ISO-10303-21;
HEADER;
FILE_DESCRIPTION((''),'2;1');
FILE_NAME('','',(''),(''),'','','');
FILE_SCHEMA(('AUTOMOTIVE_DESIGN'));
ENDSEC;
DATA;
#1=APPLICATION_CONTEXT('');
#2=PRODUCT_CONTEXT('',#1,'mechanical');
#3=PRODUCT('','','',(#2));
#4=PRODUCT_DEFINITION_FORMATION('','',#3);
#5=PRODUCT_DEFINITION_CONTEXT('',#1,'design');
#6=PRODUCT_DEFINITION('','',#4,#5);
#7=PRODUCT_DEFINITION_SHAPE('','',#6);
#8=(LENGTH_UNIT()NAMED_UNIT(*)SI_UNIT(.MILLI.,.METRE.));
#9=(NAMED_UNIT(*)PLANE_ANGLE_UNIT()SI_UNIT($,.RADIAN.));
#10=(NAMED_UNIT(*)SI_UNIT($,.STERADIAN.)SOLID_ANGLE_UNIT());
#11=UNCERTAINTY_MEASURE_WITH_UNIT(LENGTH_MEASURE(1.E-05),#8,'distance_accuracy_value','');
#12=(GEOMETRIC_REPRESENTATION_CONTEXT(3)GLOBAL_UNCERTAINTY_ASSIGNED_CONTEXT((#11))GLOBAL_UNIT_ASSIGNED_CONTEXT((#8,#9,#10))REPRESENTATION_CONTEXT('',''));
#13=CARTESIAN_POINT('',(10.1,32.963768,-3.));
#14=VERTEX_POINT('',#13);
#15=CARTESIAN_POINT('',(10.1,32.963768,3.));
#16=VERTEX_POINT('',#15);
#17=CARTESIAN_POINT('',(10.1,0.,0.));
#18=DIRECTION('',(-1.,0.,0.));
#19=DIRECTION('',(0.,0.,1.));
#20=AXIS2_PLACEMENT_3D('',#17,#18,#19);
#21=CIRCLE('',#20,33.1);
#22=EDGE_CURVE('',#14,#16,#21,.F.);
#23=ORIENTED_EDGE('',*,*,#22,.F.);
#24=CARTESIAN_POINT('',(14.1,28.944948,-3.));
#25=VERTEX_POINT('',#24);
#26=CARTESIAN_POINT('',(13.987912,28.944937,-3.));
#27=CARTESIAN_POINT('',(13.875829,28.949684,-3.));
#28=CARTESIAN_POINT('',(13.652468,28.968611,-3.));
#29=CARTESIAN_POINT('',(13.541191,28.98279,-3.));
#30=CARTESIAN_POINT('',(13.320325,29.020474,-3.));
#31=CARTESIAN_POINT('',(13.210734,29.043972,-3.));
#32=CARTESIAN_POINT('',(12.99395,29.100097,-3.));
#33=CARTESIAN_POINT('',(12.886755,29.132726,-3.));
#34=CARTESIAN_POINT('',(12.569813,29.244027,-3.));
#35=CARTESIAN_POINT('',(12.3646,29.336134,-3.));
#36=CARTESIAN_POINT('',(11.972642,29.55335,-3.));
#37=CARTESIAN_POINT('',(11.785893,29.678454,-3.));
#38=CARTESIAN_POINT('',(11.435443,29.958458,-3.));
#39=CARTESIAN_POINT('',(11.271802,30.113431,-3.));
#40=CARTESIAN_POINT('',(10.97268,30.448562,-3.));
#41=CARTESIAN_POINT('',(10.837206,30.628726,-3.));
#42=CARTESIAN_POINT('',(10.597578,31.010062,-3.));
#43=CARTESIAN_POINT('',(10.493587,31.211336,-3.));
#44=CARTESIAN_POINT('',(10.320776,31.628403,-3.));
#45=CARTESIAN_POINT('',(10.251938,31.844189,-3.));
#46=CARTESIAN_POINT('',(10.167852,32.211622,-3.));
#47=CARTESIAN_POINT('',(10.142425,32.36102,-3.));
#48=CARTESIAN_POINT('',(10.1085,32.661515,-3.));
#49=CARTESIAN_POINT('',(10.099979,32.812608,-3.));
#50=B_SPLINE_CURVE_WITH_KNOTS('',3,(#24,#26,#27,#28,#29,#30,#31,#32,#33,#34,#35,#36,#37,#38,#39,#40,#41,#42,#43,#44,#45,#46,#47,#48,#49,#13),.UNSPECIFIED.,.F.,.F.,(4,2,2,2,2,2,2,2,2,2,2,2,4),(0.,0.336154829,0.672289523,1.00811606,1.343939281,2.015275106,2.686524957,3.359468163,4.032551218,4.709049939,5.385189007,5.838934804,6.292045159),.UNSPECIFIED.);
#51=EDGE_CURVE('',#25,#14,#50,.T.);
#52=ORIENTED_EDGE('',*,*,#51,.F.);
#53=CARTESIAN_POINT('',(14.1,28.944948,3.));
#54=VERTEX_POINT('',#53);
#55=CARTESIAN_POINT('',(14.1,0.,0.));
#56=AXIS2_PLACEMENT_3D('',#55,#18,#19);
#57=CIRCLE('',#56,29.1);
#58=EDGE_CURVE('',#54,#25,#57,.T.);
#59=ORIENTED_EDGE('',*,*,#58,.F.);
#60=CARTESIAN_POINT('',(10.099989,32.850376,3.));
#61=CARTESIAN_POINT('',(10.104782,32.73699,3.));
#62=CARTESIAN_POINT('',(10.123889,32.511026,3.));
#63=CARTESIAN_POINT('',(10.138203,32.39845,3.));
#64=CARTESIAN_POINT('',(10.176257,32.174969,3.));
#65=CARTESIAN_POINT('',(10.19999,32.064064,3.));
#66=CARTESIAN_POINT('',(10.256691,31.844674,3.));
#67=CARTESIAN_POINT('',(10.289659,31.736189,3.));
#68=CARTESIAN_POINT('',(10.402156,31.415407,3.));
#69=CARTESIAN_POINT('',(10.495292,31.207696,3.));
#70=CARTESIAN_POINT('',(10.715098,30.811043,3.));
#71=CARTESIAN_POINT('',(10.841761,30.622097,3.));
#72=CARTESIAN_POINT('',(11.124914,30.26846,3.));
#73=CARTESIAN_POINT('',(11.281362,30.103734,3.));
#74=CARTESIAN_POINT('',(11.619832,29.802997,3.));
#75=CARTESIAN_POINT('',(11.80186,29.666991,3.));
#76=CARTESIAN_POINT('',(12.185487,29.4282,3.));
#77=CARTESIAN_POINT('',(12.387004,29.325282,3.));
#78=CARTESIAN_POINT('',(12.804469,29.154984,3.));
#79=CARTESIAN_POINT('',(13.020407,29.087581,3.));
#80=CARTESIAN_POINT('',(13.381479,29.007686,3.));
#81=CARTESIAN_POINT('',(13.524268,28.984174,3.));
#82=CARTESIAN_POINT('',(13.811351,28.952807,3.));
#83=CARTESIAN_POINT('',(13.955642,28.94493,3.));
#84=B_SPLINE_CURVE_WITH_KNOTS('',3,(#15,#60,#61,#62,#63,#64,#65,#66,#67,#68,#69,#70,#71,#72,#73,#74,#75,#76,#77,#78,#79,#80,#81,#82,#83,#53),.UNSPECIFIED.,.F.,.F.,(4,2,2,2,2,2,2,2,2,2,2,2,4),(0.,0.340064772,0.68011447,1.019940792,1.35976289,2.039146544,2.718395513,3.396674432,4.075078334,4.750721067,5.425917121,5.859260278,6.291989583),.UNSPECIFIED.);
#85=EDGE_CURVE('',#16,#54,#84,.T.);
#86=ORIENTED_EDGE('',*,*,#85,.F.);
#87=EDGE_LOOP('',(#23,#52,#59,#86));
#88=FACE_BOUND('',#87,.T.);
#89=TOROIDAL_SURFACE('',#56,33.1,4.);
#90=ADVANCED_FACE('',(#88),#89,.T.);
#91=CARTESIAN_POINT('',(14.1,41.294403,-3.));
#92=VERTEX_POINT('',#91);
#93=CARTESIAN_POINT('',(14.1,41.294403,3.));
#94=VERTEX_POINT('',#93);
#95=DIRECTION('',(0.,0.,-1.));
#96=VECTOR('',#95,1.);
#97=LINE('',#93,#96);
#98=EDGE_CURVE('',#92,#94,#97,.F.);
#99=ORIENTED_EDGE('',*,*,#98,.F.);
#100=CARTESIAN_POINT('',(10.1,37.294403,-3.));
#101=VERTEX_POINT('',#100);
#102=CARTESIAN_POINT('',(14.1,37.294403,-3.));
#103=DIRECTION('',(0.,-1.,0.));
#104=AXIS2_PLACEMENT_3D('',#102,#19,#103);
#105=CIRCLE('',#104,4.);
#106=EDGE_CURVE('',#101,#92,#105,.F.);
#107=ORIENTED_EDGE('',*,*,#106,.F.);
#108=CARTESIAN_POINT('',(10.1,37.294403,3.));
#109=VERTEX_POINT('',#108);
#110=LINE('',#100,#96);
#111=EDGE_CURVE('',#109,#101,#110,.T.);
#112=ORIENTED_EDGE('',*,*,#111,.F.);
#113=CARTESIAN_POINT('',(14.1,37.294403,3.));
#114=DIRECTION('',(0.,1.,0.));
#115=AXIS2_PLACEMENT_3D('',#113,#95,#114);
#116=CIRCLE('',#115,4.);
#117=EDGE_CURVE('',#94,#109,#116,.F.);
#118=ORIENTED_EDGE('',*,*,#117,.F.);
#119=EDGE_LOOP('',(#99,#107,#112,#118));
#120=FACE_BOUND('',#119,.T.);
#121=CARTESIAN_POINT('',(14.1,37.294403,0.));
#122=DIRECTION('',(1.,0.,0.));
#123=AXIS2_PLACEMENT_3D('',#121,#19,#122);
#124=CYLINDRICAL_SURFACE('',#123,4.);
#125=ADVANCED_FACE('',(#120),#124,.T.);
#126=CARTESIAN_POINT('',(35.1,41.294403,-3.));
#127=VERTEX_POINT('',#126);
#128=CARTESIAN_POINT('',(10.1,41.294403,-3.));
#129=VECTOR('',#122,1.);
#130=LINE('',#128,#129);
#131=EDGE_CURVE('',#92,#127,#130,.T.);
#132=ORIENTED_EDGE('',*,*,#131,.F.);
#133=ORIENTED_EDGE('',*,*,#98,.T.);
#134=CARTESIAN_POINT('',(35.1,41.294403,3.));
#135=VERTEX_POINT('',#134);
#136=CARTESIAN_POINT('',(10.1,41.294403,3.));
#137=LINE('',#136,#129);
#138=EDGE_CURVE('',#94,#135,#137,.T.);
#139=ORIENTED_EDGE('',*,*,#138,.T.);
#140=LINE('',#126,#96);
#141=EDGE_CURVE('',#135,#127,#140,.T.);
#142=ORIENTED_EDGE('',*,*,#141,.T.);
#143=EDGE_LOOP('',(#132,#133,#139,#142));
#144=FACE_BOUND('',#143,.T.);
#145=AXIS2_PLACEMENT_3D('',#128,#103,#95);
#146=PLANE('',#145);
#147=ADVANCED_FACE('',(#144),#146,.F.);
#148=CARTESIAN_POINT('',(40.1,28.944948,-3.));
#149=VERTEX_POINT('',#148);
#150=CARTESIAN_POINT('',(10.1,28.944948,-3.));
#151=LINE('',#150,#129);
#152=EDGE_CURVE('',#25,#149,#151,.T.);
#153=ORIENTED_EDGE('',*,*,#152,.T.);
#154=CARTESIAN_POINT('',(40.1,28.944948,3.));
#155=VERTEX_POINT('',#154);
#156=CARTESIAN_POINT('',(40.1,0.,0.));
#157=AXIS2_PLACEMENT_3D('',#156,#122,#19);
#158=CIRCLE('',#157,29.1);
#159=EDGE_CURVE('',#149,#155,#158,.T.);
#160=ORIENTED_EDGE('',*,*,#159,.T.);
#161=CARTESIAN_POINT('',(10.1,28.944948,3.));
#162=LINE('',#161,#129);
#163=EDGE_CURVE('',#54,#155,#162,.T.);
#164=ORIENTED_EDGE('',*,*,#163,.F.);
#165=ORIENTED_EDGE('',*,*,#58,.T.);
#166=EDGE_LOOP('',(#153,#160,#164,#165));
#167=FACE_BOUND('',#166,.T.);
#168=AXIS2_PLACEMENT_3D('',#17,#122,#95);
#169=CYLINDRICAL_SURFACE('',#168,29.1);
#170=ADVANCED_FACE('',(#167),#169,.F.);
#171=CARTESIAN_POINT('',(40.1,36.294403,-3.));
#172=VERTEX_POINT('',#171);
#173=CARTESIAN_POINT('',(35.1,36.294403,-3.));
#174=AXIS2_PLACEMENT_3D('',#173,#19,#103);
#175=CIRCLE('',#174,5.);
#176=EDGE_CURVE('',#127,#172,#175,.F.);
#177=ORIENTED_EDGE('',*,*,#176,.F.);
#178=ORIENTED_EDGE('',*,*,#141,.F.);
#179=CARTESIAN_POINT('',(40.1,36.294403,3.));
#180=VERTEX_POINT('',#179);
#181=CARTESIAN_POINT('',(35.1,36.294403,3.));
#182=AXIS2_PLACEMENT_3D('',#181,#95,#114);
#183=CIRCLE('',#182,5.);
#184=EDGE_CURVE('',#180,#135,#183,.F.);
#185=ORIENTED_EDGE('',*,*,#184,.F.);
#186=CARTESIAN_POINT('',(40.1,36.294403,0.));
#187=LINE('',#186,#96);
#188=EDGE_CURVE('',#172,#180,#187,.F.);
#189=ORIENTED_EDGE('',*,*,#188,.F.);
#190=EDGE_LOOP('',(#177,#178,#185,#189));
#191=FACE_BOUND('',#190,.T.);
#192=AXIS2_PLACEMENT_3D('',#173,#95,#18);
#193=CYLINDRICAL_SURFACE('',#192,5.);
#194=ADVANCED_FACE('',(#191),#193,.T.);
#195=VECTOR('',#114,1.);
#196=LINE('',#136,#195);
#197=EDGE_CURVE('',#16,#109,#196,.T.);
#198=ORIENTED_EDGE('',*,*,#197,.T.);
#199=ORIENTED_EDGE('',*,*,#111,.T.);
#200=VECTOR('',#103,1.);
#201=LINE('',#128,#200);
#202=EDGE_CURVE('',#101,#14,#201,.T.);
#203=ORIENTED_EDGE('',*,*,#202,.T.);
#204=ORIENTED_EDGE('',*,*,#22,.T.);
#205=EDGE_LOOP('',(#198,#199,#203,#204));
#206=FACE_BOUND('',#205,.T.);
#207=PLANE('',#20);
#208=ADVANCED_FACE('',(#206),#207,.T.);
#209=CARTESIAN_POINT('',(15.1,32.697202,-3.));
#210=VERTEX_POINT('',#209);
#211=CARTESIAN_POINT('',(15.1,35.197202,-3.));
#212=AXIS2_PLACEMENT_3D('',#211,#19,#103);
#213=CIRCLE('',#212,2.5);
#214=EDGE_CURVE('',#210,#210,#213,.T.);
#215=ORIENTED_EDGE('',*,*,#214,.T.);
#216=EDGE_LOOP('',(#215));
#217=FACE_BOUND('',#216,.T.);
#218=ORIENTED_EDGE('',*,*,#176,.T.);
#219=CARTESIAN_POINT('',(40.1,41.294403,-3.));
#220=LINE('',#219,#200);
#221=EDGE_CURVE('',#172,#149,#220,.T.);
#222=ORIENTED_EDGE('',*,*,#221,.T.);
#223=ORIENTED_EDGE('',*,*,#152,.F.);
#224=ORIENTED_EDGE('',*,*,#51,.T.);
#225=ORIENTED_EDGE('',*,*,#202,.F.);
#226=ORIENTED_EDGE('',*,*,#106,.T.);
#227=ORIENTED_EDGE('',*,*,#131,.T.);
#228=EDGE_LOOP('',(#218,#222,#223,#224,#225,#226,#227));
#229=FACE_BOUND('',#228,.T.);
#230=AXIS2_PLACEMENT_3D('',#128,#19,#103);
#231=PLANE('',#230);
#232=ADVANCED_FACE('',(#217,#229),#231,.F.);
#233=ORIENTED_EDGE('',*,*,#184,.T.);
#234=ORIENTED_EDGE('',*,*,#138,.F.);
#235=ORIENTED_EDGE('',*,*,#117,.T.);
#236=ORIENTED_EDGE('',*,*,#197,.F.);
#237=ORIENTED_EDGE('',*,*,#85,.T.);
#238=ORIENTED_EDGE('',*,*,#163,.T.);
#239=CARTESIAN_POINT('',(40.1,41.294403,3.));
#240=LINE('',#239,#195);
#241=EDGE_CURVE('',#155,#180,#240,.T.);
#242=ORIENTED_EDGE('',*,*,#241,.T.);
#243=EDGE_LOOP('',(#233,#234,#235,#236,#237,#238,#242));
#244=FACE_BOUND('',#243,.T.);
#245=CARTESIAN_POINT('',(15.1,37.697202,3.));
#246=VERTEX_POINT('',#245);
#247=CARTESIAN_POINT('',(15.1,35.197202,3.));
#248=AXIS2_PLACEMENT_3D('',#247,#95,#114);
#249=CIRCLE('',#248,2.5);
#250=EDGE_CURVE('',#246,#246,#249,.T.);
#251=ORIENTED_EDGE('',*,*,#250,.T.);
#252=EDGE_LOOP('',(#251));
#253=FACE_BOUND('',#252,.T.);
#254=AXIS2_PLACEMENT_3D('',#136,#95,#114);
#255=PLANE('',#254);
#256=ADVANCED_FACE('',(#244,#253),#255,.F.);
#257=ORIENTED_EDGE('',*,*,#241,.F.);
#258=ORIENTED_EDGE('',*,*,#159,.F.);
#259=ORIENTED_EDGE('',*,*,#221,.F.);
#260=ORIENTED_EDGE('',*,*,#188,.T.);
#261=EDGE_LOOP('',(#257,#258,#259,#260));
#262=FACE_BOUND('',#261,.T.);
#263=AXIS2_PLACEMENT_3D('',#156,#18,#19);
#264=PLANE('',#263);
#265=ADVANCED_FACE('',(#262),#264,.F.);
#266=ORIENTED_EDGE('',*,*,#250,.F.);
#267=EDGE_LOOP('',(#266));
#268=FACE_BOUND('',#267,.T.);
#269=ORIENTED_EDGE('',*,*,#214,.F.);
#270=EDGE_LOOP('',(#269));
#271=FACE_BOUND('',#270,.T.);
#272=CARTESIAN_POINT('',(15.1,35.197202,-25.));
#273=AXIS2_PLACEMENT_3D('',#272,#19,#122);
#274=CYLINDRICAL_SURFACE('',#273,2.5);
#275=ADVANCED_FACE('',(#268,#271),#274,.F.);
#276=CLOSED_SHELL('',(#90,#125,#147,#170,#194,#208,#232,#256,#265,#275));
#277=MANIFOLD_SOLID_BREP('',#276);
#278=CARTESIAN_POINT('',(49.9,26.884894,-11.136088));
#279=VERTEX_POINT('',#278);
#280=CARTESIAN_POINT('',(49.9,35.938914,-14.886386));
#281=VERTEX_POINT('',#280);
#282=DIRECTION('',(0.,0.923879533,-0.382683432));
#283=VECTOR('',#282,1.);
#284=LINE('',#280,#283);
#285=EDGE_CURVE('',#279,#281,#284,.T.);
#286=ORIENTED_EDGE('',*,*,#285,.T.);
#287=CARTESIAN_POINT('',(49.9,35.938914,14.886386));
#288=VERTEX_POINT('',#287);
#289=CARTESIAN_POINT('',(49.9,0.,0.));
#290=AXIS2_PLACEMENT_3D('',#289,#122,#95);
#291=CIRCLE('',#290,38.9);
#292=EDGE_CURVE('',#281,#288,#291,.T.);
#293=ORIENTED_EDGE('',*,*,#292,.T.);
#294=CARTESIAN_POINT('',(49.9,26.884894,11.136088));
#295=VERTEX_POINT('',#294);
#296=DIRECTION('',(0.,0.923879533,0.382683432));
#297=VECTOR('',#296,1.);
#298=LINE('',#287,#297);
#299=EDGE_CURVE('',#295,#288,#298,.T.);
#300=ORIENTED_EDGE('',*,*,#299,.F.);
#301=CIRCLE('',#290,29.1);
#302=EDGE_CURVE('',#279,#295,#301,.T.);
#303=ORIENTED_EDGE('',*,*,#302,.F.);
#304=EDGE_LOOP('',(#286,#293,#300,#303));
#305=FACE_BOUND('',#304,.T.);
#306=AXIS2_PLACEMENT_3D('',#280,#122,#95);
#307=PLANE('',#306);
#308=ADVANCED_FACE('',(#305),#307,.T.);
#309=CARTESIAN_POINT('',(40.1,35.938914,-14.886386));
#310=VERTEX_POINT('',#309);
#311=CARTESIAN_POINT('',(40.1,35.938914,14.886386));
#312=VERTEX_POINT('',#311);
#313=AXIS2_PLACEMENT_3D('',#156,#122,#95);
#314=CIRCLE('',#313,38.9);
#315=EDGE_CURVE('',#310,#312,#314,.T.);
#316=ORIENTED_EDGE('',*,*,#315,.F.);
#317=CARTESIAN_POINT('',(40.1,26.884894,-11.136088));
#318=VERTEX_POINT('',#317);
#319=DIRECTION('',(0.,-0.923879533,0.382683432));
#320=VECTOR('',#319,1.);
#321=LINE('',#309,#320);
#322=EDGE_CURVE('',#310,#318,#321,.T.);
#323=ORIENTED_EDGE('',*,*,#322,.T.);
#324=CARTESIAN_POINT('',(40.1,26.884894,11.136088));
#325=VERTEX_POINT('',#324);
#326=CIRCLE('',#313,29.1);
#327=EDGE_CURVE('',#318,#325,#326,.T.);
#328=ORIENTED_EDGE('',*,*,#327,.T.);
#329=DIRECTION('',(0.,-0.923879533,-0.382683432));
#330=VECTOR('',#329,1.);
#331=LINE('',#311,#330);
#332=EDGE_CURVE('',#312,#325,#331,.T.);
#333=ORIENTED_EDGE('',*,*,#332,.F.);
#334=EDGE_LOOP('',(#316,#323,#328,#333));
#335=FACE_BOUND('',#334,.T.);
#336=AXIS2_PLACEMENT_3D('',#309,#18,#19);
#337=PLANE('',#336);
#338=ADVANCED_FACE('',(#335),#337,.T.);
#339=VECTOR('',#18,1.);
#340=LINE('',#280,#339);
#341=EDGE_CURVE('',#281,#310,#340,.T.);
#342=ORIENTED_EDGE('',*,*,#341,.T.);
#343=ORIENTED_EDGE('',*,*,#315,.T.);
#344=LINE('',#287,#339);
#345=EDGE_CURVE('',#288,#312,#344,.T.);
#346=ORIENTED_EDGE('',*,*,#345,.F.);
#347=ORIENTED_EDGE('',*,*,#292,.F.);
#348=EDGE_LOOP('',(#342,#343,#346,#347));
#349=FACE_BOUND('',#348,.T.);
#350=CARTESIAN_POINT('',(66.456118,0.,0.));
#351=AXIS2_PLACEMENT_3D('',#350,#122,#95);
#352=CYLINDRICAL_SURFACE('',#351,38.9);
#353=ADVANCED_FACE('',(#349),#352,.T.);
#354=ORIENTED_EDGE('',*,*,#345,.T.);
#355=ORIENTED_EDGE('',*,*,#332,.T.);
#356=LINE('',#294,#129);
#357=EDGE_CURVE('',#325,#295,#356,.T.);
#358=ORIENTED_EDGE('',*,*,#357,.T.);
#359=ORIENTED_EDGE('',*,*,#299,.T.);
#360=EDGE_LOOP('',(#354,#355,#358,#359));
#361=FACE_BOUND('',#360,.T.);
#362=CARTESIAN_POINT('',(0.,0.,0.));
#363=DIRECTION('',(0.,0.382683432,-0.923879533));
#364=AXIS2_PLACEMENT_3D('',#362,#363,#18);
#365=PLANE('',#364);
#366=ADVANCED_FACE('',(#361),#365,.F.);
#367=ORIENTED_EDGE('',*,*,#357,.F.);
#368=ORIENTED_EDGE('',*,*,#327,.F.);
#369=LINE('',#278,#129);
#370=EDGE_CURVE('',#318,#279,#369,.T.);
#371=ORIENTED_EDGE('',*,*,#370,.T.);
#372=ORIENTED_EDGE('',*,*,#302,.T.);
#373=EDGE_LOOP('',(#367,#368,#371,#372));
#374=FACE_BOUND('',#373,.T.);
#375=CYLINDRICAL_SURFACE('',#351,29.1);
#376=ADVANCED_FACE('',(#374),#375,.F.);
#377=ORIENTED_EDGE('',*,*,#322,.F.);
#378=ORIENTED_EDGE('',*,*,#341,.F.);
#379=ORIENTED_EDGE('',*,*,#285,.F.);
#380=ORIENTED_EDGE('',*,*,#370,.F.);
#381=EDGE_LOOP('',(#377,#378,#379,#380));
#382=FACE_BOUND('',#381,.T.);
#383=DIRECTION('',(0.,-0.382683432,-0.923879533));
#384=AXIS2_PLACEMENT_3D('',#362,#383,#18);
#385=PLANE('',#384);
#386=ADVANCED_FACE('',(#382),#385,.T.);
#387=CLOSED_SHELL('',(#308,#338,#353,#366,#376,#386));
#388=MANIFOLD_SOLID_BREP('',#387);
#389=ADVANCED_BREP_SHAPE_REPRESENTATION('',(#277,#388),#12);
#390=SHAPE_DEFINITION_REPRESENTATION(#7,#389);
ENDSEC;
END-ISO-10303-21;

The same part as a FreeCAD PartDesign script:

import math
import FreeCAD as App
import Part
import Sketcher


def edges_at(feature, points):
    """Names of the edges that pass closest to the given points."""
    edges = feature.Shape.Edges
    near = lambda p: min(range(len(edges)), key=lambda i: edges[i].distToShape(Part.Vertex(*p))[0])
    return sorted({f"Edge{near(p) + 1}" for p in points})

doc = App.newDocument("Part")
body = doc.addObject("PartDesign::Body", "Body")

# Sketch on XY plane
sketch1 = body.newObject("Sketcher::SketchObject", "Sketch")
sketch1.AttachmentSupport = (doc.getObject("XY_Plane"), [""])
sketch1.MapMode = "FlatFace"
sketch1.addGeometry([
    Part.LineSegment(App.Vector(40, 39, 0), App.Vector(40, 29, 0)),
    Part.LineSegment(App.Vector(40, 29, 0), App.Vector(50, 29, 0)),
    Part.LineSegment(App.Vector(50, 29, 0), App.Vector(50, 39, 0)),
    Part.LineSegment(App.Vector(50, 39, 0), App.Vector(40, 39, 0)),
], False)
sketch1.addConstraint([
    Sketcher.Constraint("Coincident", 0, 2, 1, 1),
    Sketcher.Constraint("Coincident", 1, 2, 2, 1),
    Sketcher.Constraint("Coincident", 2, 2, 3, 1),
    Sketcher.Constraint("Coincident", 3, 2, 0, 1),
    Sketcher.Constraint("Vertical", 0),
    Sketcher.Constraint("Horizontal", 1),
    Sketcher.Constraint("Vertical", 2),
    Sketcher.Constraint("Horizontal", 3),
    Sketcher.Constraint("Equal", 3, 0),
    Sketcher.Constraint("DistanceX", 1, 1, 1, 2, 9.8),
    Sketcher.Constraint("DistanceX", -1, 1, 0, 2, 40.1),
    Sketcher.Constraint("DistanceY", -1, 1, 0, 2, 29.1),
])
revolution = body.newObject("PartDesign::Revolution", "Revolution")
revolution.Profile = sketch1
revolution.ReferenceAxis = (sketch1, ["H_Axis"])
revolution.Angle = 22.5
revolution.Reversed = True

# Sketch on XY plane
sketch2 = body.newObject("Sketcher::SketchObject", "Sketch001")
sketch2.AttachmentSupport = (doc.getObject("XY_Plane"), [""])
sketch2.MapMode = "FlatFace"
sketch2.addGeometry([
    Part.LineSegment(App.Vector(40, 39, 0), App.Vector(40, 29, 0)),
    Part.LineSegment(App.Vector(40, 29, 0), App.Vector(50, 29, 0)),
    Part.LineSegment(App.Vector(50, 29, 0), App.Vector(50, 39, 0)),
    Part.LineSegment(App.Vector(50, 39, 0), App.Vector(40, 39, 0)),
], False)
sketch2.addConstraint([
    Sketcher.Constraint("Coincident", 0, 2, 1, 1),
    Sketcher.Constraint("Coincident", 1, 2, 2, 1),
    Sketcher.Constraint("Coincident", 2, 2, 3, 1),
    Sketcher.Constraint("Coincident", 3, 2, 0, 1),
    Sketcher.Constraint("Vertical", 0),
    Sketcher.Constraint("Horizontal", 1),
    Sketcher.Constraint("Vertical", 2),
    Sketcher.Constraint("Horizontal", 3),
    Sketcher.Constraint("Equal", 3, 0),
    Sketcher.Constraint("DistanceX", 1, 1, 1, 2, 9.8),
    Sketcher.Constraint("DistanceX", -1, 1, 0, 2, 40.1),
    Sketcher.Constraint("DistanceY", -1, 1, 0, 2, 29.1),
])
revolution2 = body.newObject("PartDesign::Revolution", "Revolution001")
revolution2.Profile = sketch2
revolution2.ReferenceAxis = (sketch2, ["H_Axis"])
revolution2.Angle = 22.5
body2 = doc.addObject("PartDesign::Body", "Body001")

# Sketch on YZ plane
sketch3 = body2.newObject("Sketcher::SketchObject", "Sketch002")
sketch3.AttachmentSupport = (doc.getObject("YZ_Plane001"), [""])
sketch3.MapMode = "FlatFace"
sketch3.AttachmentOffset = App.Placement(App.Vector(0, 0, 40.1), App.Rotation())
sketch3.addGeometry([
    Part.LineSegment(App.Vector(41, -3, 0), App.Vector(29, -3, 0)),
    Part.ArcOfCircle(Part.Circle(App.Vector(0, 0, 0), App.Vector(0, 0, 1), 29), math.radians(-5.92), math.radians(5.92)),
    Part.LineSegment(App.Vector(29, 3, 0), App.Vector(41, 3, 0)),
    Part.LineSegment(App.Vector(41, 3, 0), App.Vector(41, -3, 0)),
], False)
sketch3.addConstraint([
    Sketcher.Constraint("Coincident", 0, 2, 1, 1),
    Sketcher.Constraint("Coincident", 1, 2, 2, 1),
    Sketcher.Constraint("Coincident", 2, 2, 3, 1),
    Sketcher.Constraint("Coincident", 3, 2, 0, 1),
    Sketcher.Constraint("Horizontal", 0),
    Sketcher.Constraint("Horizontal", 2),
    Sketcher.Constraint("Vertical", 3),
    Sketcher.Constraint("Coincident", 1, 3, -1, 1),
    Sketcher.Constraint("Vertical", 0, 2, 1, 2),
    Sketcher.Constraint("Radius", 1, 29.1),
    Sketcher.Constraint("DistanceY", 3, 2, 3, 1, 6.0),
    Sketcher.Constraint("DistanceX", 0, 2, 0, 1, 12.349455),
])
pad1 = body2.newObject("PartDesign::Pad", "Pad")
pad1.Profile = sketch3
pad1.Length = 30
pad1.Reversed = True

# Sketch on XY plane
sketch4 = body2.newObject("Sketcher::SketchObject", "Sketch003")
sketch4.AttachmentSupport = (doc.getObject("XY_Plane001"), [""])
sketch4.MapMode = "FlatFace"
sketch4.addGeometry(Part.Circle(App.Vector(15.1, 35.2, 0), App.Vector(0, 0, 1), 2.5), False)
sketch4.addConstraint([
    Sketcher.Constraint("Diameter", 0, 5.0),
    Sketcher.Constraint("DistanceX", -1, 1, 0, 3, 15.1),
    Sketcher.Constraint("DistanceY", -1, 1, 0, 3, 35.197202),
])
pocket1 = body2.newObject("PartDesign::Pocket", "Pocket")
pocket1.Profile = sketch4
pocket1.Length = 50
pocket1.Midplane = True
doc.recompute()

fillet = body2.newObject("PartDesign::Fillet", "Fillet")
fillet.Base = (pocket1, edges_at(pocket1, [(10.1, 29.1, 0), (10.1, 41.294, 0)]))
fillet.Radius = 4
doc.recompute()

fillet2 = body2.newObject("PartDesign::Fillet", "Fillet001")
fillet2.Base = (fillet, edges_at(fillet, [(40.1, 41.294, 0)]))
fillet2.Radius = 5

doc.recompute()
